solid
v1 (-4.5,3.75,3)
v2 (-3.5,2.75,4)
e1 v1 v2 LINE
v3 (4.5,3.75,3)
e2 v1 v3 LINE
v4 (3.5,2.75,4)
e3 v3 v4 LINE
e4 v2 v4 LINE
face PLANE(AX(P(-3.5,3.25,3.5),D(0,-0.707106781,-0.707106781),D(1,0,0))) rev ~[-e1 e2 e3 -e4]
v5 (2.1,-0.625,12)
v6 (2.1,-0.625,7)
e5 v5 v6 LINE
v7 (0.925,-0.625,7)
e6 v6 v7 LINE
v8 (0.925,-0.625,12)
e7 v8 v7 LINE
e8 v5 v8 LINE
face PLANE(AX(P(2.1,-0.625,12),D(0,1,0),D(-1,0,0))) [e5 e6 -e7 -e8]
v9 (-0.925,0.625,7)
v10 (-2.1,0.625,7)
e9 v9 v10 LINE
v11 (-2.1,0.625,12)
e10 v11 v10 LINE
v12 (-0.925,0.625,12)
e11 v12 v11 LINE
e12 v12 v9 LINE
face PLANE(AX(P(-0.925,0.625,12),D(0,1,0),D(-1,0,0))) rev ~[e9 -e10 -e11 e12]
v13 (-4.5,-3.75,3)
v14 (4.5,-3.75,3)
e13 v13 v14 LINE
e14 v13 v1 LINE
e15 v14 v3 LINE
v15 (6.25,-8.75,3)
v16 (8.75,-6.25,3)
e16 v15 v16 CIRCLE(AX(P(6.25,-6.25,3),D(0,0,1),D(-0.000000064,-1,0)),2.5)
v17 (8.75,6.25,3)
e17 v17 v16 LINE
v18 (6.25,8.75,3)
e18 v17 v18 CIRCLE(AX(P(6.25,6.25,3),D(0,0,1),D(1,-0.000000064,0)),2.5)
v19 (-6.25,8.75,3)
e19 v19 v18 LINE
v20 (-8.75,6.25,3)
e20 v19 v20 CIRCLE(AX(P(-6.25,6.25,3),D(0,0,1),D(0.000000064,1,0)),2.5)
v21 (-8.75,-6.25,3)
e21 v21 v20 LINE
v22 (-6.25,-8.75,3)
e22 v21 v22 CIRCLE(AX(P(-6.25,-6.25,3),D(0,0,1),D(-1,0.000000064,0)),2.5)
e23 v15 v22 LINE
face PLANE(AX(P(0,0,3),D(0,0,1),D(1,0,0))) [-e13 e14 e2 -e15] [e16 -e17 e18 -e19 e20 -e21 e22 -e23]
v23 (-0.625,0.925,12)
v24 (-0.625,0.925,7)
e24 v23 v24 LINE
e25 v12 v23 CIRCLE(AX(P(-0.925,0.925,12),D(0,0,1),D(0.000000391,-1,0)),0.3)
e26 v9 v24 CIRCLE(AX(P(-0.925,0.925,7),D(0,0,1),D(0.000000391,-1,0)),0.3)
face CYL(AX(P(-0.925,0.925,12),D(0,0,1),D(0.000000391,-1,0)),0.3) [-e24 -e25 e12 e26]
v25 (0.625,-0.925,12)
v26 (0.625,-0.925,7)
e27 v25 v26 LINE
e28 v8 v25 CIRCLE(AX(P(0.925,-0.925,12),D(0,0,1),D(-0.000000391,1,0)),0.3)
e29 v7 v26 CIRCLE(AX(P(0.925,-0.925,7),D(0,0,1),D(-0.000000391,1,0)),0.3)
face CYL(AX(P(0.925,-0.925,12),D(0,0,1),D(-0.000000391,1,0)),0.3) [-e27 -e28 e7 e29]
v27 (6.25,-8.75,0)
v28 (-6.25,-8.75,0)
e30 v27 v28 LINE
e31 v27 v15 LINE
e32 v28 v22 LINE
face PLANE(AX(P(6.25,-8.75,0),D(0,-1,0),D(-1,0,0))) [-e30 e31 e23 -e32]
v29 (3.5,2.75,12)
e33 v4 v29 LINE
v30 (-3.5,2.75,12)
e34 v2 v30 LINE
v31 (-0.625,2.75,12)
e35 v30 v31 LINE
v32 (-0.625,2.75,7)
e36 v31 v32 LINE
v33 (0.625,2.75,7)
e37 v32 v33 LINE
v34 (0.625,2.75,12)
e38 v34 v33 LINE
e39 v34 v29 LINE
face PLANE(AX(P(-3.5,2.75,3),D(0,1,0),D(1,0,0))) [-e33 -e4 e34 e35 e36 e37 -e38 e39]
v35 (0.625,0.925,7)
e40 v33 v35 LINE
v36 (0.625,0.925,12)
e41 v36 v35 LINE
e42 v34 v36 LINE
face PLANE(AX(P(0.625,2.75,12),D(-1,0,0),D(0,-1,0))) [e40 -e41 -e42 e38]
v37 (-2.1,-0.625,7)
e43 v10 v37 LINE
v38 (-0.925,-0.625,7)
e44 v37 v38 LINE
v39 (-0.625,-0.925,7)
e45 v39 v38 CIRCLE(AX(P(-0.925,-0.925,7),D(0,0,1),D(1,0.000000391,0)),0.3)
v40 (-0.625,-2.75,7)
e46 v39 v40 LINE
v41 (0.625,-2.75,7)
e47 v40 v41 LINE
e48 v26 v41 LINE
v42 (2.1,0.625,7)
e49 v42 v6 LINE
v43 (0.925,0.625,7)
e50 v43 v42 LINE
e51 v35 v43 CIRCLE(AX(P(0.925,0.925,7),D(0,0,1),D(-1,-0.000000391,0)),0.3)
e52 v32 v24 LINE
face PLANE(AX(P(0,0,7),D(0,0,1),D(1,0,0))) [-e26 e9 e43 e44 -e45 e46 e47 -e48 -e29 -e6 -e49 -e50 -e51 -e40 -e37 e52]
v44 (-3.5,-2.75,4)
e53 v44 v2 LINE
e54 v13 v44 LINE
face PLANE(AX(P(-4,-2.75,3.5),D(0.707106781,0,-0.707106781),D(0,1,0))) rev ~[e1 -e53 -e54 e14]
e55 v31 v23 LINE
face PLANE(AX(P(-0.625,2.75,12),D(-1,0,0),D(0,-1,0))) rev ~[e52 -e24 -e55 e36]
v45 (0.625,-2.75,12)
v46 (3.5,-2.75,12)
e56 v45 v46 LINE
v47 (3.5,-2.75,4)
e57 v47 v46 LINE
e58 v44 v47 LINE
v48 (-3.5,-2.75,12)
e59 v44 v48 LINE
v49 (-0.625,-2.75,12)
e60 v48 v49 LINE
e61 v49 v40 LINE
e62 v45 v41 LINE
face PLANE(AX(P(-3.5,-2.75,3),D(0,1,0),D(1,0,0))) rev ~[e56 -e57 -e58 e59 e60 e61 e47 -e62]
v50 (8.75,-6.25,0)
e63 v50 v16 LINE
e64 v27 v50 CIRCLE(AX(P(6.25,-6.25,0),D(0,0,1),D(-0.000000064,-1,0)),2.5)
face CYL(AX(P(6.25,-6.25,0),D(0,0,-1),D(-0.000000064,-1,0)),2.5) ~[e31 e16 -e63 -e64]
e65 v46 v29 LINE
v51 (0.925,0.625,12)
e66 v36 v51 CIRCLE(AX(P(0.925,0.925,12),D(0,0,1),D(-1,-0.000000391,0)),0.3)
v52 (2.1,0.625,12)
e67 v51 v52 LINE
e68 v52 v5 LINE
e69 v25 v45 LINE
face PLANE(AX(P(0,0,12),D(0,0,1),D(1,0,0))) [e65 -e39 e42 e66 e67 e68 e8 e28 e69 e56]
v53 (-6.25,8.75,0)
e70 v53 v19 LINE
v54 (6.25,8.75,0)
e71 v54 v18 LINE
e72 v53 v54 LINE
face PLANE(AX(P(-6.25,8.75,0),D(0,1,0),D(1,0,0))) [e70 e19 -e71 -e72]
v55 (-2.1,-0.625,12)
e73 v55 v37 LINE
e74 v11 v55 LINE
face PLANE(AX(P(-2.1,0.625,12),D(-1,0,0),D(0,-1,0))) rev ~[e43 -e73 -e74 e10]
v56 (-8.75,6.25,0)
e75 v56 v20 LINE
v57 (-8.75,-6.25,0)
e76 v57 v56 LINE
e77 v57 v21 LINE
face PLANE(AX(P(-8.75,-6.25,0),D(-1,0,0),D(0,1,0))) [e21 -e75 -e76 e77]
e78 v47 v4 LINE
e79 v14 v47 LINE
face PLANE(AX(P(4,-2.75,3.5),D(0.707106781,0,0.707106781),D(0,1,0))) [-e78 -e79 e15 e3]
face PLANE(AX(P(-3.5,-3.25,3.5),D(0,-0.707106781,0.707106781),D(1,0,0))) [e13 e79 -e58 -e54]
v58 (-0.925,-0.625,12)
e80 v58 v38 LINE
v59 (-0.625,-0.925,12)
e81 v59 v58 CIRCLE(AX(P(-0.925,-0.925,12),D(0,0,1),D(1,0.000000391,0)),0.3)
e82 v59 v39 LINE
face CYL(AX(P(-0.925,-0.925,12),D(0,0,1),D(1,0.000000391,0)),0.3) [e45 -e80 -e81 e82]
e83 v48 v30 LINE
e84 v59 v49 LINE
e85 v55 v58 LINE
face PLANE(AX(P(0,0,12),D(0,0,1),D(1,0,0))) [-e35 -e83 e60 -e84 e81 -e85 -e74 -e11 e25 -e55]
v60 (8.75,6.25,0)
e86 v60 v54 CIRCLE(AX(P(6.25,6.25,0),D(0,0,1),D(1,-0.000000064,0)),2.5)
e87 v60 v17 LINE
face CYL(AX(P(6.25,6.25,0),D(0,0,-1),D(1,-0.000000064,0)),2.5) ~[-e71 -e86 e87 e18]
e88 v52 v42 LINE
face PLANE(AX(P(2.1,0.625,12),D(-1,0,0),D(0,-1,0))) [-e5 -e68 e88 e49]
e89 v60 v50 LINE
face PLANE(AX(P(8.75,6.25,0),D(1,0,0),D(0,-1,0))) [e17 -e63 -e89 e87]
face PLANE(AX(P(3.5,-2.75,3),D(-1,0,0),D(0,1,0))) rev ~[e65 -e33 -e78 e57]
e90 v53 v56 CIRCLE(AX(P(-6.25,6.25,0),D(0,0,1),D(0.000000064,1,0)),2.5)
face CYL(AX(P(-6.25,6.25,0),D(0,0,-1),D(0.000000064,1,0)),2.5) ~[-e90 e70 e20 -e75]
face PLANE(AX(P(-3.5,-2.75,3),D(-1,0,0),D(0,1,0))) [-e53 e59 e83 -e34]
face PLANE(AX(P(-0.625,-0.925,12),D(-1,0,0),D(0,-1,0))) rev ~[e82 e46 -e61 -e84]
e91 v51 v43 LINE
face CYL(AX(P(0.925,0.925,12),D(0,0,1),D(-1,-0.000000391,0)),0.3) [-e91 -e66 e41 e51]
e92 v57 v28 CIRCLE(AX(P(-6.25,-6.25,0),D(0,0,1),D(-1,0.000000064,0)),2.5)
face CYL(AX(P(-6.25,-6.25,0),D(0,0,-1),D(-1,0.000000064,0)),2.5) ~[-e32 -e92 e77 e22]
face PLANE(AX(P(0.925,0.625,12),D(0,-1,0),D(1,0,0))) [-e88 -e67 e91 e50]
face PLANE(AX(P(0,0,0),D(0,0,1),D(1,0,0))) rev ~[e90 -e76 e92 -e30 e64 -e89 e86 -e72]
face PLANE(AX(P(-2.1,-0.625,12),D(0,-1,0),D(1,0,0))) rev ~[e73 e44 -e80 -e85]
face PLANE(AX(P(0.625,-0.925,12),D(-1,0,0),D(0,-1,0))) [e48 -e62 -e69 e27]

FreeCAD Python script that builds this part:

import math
import FreeCAD as App
import Part
import Sketcher
Q = App.Units.Quantity


def edges_at(feature, points):
    """Names of the edges that pass closest to the given points."""
    edges = feature.Shape.Edges
    near = lambda p: min(range(len(edges)), key=lambda i: edges[i].distToShape(Part.Vertex(*p))[0])
    return sorted({f"Edge{near(p) + 1}" for p in points})

doc = App.newDocument("Part")
body = doc.addObject("PartDesign::Body", "Body")

# Sketch on XY plane
sketch1 = body.newObject("Sketcher::SketchObject", "Sketch")
sketch1.AttachmentSupport = (doc.getObject("XY_Plane"), [""])
sketch1.MapMode = "FlatFace"
sketch1.addGeometry(Part.ArcOfCircle(Part.Circle(App.Vector(-6.3, 6.3, 0), App.Vector(0, 0, 1), 2.5), math.radians(90), math.radians(180)), False)
sketch1.addGeometry(Part.LineSegment(App.Vector(-8.8, 6.2, 0), App.Vector(-8.8, -6.2, 0)), False)
sketch1.addGeometry(Part.ArcOfCircle(Part.Circle(App.Vector(-6.3, -6.3, 0), App.Vector(0, 0, 1), 2.5), math.radians(180), math.radians(270)), False)
sketch1.addGeometry(Part.LineSegment(App.Vector(-6.2, -8.8, 0), App.Vector(6.2, -8.8, 0)), False)
sketch1.addGeometry(Part.ArcOfCircle(Part.Circle(App.Vector(6.3, -6.3, 0), App.Vector(0, 0, 1), 2.5), math.radians(-90), math.radians(0)), False)
sketch1.addGeometry(Part.LineSegment(App.Vector(8.8, -6.2, 0), App.Vector(8.8, 6.2, 0)), False)
sketch1.addGeometry(Part.ArcOfCircle(Part.Circle(App.Vector(6.3, 6.3, 0), App.Vector(0, 0, 1), 2.5), math.radians(0), math.radians(90)), False)
sketch1.addGeometry(Part.LineSegment(App.Vector(6.2, 8.8, 0), App.Vector(-6.2, 8.8, 0)), False)
sketch1.addConstraint(Sketcher.Constraint("Tangent", 0, 2, 1, 1))
sketch1.addConstraint(Sketcher.Constraint("Tangent", 1, 2, 2, 1))
sketch1.addConstraint(Sketcher.Constraint("Tangent", 2, 2, 3, 1))
sketch1.addConstraint(Sketcher.Constraint("Tangent", 3, 2, 4, 1))
sketch1.addConstraint(Sketcher.Constraint("Tangent", 4, 2, 5, 1))
sketch1.addConstraint(Sketcher.Constraint("Tangent", 5, 2, 6, 1))
sketch1.addConstraint(Sketcher.Constraint("Tangent", 6, 2, 7, 1))
sketch1.addConstraint(Sketcher.Constraint("Tangent", 7, 2, 0, 1))
sketch1.addConstraint(Sketcher.Constraint("Vertical", 1))
sketch1.addConstraint(Sketcher.Constraint("Horizontal", 3))
sketch1.addConstraint(Sketcher.Constraint("Vertical", 5))
sketch1.addConstraint(Sketcher.Constraint("Horizontal", 7))
sketch1.addConstraint(Sketcher.Constraint("Equal", 0, 2))
sketch1.addConstraint(Sketcher.Constraint("Equal", 2, 4))
sketch1.addConstraint(Sketcher.Constraint("Equal", 4, 6))
sketch1.addConstraint(Sketcher.Constraint("Symmetric", 0, 3, 4, 3, -1, 1))
sketch1.addConstraint(Sketcher.Constraint("Equal", 7, 1))
sketch1.addConstraint(Sketcher.Constraint("Radius", 0, Q("2.5 mm")))
sketch1.addConstraint(Sketcher.Constraint("DistanceX", 3, 1, 3, 2, Q("12.5 mm")))
pad1 = body.newObject("PartDesign::Pad", "Pad")
pad1.Profile = sketch1
pad1.Length = 3

# Sketch on XY plane
sketch2 = body.newObject("Sketcher::SketchObject", "Sketch001")
sketch2.AttachmentSupport = (doc.getObject("XY_Plane"), [""])
sketch2.MapMode = "FlatFace"
sketch2.AttachmentOffset = App.Placement(App.Vector(0, 0, 3), App.Rotation())
sketch2.addGeometry(Part.LineSegment(App.Vector(-4, 3, 0), App.Vector(-4, -3, 0)), False)
sketch2.addGeometry(Part.LineSegment(App.Vector(-4, -3, 0), App.Vector(4, -3, 0)), False)
sketch2.addGeometry(Part.LineSegment(App.Vector(4, -3, 0), App.Vector(4, 3, 0)), False)
sketch2.addGeometry(Part.LineSegment(App.Vector(4, 3, 0), App.Vector(-4, 3, 0)), False)
sketch2.addConstraint(Sketcher.Constraint("Coincident", 0, 2, 1, 1))
sketch2.addConstraint(Sketcher.Constraint("Coincident", 1, 2, 2, 1))
sketch2.addConstraint(Sketcher.Constraint("Coincident", 2, 2, 3, 1))
sketch2.addConstraint(Sketcher.Constraint("Coincident", 3, 2, 0, 1))
sketch2.addConstraint(Sketcher.Constraint("Vertical", 0))
sketch2.addConstraint(Sketcher.Constraint("Horizontal", 1))
sketch2.addConstraint(Sketcher.Constraint("Vertical", 2))
sketch2.addConstraint(Sketcher.Constraint("Horizontal", 3))
sketch2.addConstraint(Sketcher.Constraint("Symmetric", 0, 2, 2, 2, -1, 1))
sketch2.addConstraint(Sketcher.Constraint("DistanceX", 1, 1, 1, 2, Q("7 mm")))
sketch2.addConstraint(Sketcher.Constraint("DistanceY", 0, 2, 0, 1, Q("5.5 mm")))
pad2 = body.newObject("PartDesign::Pad", "Pad001")
pad2.Profile = sketch2
pad2.Length = 9

# Sketch on XY plane
sketch3 = body.newObject("Sketcher::SketchObject", "Sketch002")
sketch3.AttachmentSupport = (doc.getObject("XY_Plane"), [""])
sketch3.MapMode = "FlatFace"
sketch3.AttachmentOffset = App.Placement(App.Vector(0, 0, 12), App.Rotation())
sketch3.addGeometry(Part.LineSegment(App.Vector(-0.62, 2.75, 0), App.Vector(-0.62, 0.93, 0)), False)
sketch3.addGeometry(Part.ArcOfCircle(Part.Circle(App.Vector(-0.93, 0.93, 0), App.Vector(0, 0, 1), 0.3), math.radians(-90), math.radians(0)), False)
sketch3.addGeometry(Part.LineSegment(App.Vector(-0.93, 0.62, 0), App.Vector(-2.1, 0.62, 0)), False)
sketch3.addGeometry(Part.LineSegment(App.Vector(-2.1, 0.62, 0), App.Vector(-2.1, -0.62, 0)), False)
sketch3.addGeometry(Part.LineSegment(App.Vector(-2.1, -0.62, 0), App.Vector(-0.93, -0.62, 0)), False)
sketch3.addGeometry(Part.ArcOfCircle(Part.Circle(App.Vector(-0.93, -0.93, 0), App.Vector(0, 0, 1), 0.3), math.radians(0), math.radians(90)), False)
sketch3.addGeometry(Part.LineSegment(App.Vector(-0.62, -0.93, 0), App.Vector(-0.62, -2.75, 0)), False)
sketch3.addGeometry(Part.LineSegment(App.Vector(-0.62, -2.75, 0), App.Vector(0.62, -2.75, 0)), False)
sketch3.addGeometry(Part.LineSegment(App.Vector(0.62, -2.75, 0), App.Vector(0.62, -0.93, 0)), False)
sketch3.addGeometry(Part.ArcOfCircle(Part.Circle(App.Vector(0.93, -0.93, 0), App.Vector(0, 0, 1), 0.3), math.radians(90), math.radians(180)), False)
sketch3.addGeometry(Part.LineSegment(App.Vector(0.93, -0.62, 0), App.Vector(2.1, -0.62, 0)), False)
sketch3.addGeometry(Part.LineSegment(App.Vector(2.1, -0.62, 0), App.Vector(2.1, 0.62, 0)), False)
sketch3.addGeometry(Part.LineSegment(App.Vector(2.1, 0.62, 0), App.Vector(0.93, 0.62, 0)), False)
sketch3.addGeometry(Part.ArcOfCircle(Part.Circle(App.Vector(0.93, 0.93, 0), App.Vector(0, 0, 1), 0.3), math.radians(-180), math.radians(-90)), False)
sketch3.addGeometry(Part.LineSegment(App.Vector(0.62, 0.93, 0), App.Vector(0.62, 2.75, 0)), False)
sketch3.addGeometry(Part.LineSegment(App.Vector(0.62, 2.75, 0), App.Vector(-0.62, 2.75, 0)), False)
sketch3.addConstraint(Sketcher.Constraint("Tangent", 0, 2, 1, 2))
sketch3.addConstraint(Sketcher.Constraint("Tangent", 1, 1, 2, 1))
sketch3.addConstraint(Sketcher.Constraint("Coincident", 2, 2, 3, 1))
sketch3.addConstraint(Sketcher.Constraint("Coincident", 3, 2, 4, 1))
sketch3.addConstraint(Sketcher.Constraint("Tangent", 4, 2, 5, 2))
sketch3.addConstraint(Sketcher.Constraint("Tangent", 5, 1, 6, 1))
sketch3.addConstraint(Sketcher.Constraint("Coincident", 6, 2, 7, 1))
sketch3.addConstraint(Sketcher.Constraint("Coincident", 7, 2, 8, 1))
sketch3.addConstraint(Sketcher.Constraint("Tangent", 8, 2, 9, 2))
sketch3.addConstraint(Sketcher.Constraint("Tangent", 9, 1, 10, 1))
sketch3.addConstraint(Sketcher.Constraint("Coincident", 10, 2, 11, 1))
sketch3.addConstraint(Sketcher.Constraint("Coincident", 11, 2, 12, 1))
sketch3.addConstraint(Sketcher.Constraint("Tangent", 12, 2, 13, 2))
sketch3.addConstraint(Sketcher.Constraint("Tangent", 13, 1, 14, 1))
sketch3.addConstraint(Sketcher.Constraint("Coincident", 14, 2, 15, 1))
sketch3.addConstraint(Sketcher.Constraint("Coincident", 15, 2, 0, 1))
sketch3.addConstraint(Sketcher.Constraint("Vertical", 0))
sketch3.addConstraint(Sketcher.Constraint("Horizontal", 2))
sketch3.addConstraint(Sketcher.Constraint("Vertical", 3))
sketch3.addConstraint(Sketcher.Constraint("Horizontal", 4))
sketch3.addConstraint(Sketcher.Constraint("Vertical", 6))
sketch3.addConstraint(Sketcher.Constraint("Horizontal", 7))
sketch3.addConstraint(Sketcher.Constraint("Vertical", 8))
sketch3.addConstraint(Sketcher.Constraint("Horizontal", 10))
sketch3.addConstraint(Sketcher.Constraint("Vertical", 11))
sketch3.addConstraint(Sketcher.Constraint("Horizontal", 12))
sketch3.addConstraint(Sketcher.Constraint("Vertical", 14))
sketch3.addConstraint(Sketcher.Constraint("Horizontal", 15))
sketch3.addConstraint(Sketcher.Constraint("Equal", 1, 5))
sketch3.addConstraint(Sketcher.Constraint("Equal", 5, 9))
sketch3.addConstraint(Sketcher.Constraint("Equal", 9, 13))
sketch3.addConstraint(Sketcher.Constraint("Symmetric", 1, 3, 9, 3, -1, 1))
sketch3.addConstraint(Sketcher.Constraint("Symmetric", 5, 3, 13, 3, -1, 1))
sketch3.addConstraint(Sketcher.Constraint("Symmetric", 5, 3, 9, 3, -2))
sketch3.addConstraint(Sketcher.Constraint("Equal", 4, 10))
sketch3.addConstraint(Sketcher.Constraint("Equal", 15, 3))
sketch3.addConstraint(Sketcher.Constraint("Equal", 0, 6))
sketch3.addConstraint(Sketcher.Constraint("Radius", 1, Q("0.3 mm")))
sketch3.addConstraint(Sketcher.Constraint("DistanceX", 7, 1, 7, 2, Q("1.25 mm")))
sketch3.addConstraint(Sketcher.Constraint("DistanceX", 2, 2, -1, 1, Q("2.1 mm")))
sketch3.addConstraint(Sketcher.Constraint("DistanceY", 0, 2, 0, 1, Q("1.825 mm")))
pocket1 = body.newObject("PartDesign::Pocket", "Pocket")
pocket1.Profile = sketch3
pocket1.Length = 5
doc.recompute()

chamfer = body.newObject("PartDesign::Chamfer", "Chamfer")
chamfer.Base = (pocket1, edges_at(pocket1, [
    (-3.5, 0, 3),
    (0, 2.75, 3),
    (0, -2.75, 3),
    (3.5, 0, 3),
]))
chamfer.Size = 1

doc.recompute()
